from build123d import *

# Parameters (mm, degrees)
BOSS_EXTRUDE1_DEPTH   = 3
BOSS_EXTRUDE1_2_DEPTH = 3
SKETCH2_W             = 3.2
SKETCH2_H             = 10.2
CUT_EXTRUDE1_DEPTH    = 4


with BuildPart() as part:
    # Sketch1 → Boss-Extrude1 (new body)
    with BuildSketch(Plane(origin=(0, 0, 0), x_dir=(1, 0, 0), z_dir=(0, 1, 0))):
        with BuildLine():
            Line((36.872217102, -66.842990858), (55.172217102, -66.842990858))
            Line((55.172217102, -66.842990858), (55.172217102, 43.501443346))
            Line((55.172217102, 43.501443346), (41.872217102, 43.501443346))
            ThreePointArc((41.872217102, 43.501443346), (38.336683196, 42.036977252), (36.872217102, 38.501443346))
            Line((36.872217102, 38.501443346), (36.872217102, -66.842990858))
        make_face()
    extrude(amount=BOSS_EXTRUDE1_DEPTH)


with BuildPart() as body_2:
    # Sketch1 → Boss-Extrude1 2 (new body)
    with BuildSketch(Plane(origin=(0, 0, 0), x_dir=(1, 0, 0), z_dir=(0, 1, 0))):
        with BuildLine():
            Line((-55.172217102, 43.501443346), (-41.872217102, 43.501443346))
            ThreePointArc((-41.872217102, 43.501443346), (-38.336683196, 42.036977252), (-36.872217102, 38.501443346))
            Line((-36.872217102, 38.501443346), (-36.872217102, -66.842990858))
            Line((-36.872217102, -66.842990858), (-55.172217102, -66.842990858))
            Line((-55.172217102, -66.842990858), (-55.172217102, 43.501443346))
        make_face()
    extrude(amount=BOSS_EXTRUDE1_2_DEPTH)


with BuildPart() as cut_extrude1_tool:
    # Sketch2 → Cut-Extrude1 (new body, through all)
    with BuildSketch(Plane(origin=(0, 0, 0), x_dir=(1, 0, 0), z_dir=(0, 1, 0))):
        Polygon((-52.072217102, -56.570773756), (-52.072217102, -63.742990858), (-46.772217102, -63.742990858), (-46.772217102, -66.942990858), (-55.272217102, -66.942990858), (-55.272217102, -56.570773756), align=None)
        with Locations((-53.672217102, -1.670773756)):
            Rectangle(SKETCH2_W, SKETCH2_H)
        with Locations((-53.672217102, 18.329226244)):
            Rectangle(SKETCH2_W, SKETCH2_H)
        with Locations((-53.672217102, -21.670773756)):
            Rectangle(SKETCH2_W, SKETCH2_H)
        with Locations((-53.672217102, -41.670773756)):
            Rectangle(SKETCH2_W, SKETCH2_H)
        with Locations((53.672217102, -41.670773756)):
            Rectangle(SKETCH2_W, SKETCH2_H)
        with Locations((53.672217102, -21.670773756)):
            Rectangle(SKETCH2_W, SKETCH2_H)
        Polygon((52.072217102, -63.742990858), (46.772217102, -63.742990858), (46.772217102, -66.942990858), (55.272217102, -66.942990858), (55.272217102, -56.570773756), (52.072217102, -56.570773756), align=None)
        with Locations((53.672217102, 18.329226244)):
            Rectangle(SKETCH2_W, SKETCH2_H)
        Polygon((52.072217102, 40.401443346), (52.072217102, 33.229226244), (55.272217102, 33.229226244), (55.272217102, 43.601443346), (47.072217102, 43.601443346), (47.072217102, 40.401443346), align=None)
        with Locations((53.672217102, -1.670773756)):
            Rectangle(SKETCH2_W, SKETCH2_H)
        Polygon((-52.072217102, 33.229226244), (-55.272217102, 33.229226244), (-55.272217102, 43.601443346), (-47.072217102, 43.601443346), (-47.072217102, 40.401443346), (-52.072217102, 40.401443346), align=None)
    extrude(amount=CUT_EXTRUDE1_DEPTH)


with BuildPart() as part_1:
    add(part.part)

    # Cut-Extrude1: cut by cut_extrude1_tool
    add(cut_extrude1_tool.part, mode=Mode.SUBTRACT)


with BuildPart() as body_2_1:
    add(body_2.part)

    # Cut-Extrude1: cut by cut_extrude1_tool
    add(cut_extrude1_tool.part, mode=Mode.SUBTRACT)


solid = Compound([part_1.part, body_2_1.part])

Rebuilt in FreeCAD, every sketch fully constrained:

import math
import FreeCAD as App
import Part
import Sketcher

V = App.Vector
Q = App.Units.Quantity


def add_polygon(sketch, points):
    """Adds a closed chain of lines whose ends are joined by coincident constraints."""
    first, n = sketch.GeometryCount, len(points)
    for a, b in zip(points, points[1:] + points[:1]):
        sketch.addGeometry(Part.LineSegment(App.Vector(*a, 0), App.Vector(*b, 0)), False)
    for i in range(n):
        sketch.addConstraint(Sketcher.Constraint("Coincident", first + i, 2, first + (i + 1) % n, 1))

doc = App.newDocument("Part")
body = doc.addObject("PartDesign::Body", "Body")

sketch1 = doc.addObject("Sketcher::SketchObject", "Sketch")
body.addObject(sketch1)
sketch1.AttachmentSupport = (doc.XZ_Plane, [""])
sketch1.MapMode = "FlatFace"
sketch1.addGeometry(Part.LineSegment(V(37, 67, 0), V(55, 67, 0)), False)
sketch1.addGeometry(Part.LineSegment(V(55, 67, 0), V(55, -44, 0)), False)
sketch1.addGeometry(Part.LineSegment(V(55, -44, 0), V(42, -44, 0)), False)
sketch1.addGeometry(Part.ArcOfCircle(Part.Circle(V(42, -39, 0), V(0, 0, 1), 5), math.radians(180), math.radians(270)), False)
sketch1.addGeometry(Part.LineSegment(V(37, -39, 0), V(37, 67, 0)), False)
sketch1.addConstraint(Sketcher.Constraint("Coincident", 0, 2, 1, 1))
sketch1.addConstraint(Sketcher.Constraint("Coincident", 1, 2, 2, 1))
sketch1.addConstraint(Sketcher.Constraint("Tangent", 2, 2, 3, 2))
sketch1.addConstraint(Sketcher.Constraint("Tangent", 3, 1, 4, 1))
sketch1.addConstraint(Sketcher.Constraint("Coincident", 4, 2, 0, 1))
sketch1.addConstraint(Sketcher.Constraint("Horizontal", 0))
sketch1.addConstraint(Sketcher.Constraint("Vertical", 1))
sketch1.addConstraint(Sketcher.Constraint("Horizontal", 2))
sketch1.addConstraint(Sketcher.Constraint("Vertical", 4))
sketch1.addConstraint(Sketcher.Constraint("Radius", 3, Q("5 mm")))
sketch1.addConstraint(Sketcher.Constraint("DistanceX", 0, 1, 0, 2, Q("18.3 mm")))
sketch1.addConstraint(Sketcher.Constraint("DistanceY", 1, 2, 1, 1, Q("110.344434 mm")))
sketch1.addConstraint(Sketcher.Constraint("DistanceY", -1, 1, 0, 2, Q("66.842991 mm")))
sketch1.addConstraint(Sketcher.Constraint("DistanceX", -1, 1, 3, 3, Q("41.872217 mm")))
pad1 = doc.addObject("PartDesign::Pad", "Pad")
body.addObject(pad1)
pad1.Profile = sketch1
pad1.Length = 3
pad1.Reversed = True
body2 = doc.addObject("PartDesign::Body", "Body001")

sketch2 = doc.addObject("Sketcher::SketchObject", "Sketch001")
body2.addObject(sketch2)
sketch2.AttachmentSupport = (doc.getObject("XZ_Plane001"), [""])
sketch2.MapMode = "FlatFace"
sketch2.addGeometry(Part.LineSegment(V(-42, -44, 0), V(-55, -44, 0)), False)
sketch2.addGeometry(Part.LineSegment(V(-55, -44, 0), V(-55, 67, 0)), False)
sketch2.addGeometry(Part.LineSegment(V(-55, 67, 0), V(-37, 67, 0)), False)
sketch2.addGeometry(Part.LineSegment(V(-37, 67, 0), V(-37, -39, 0)), False)
sketch2.addGeometry(Part.ArcOfCircle(Part.Circle(V(-42, -39, 0), V(0, 0, 1), 5), math.radians(-90), math.radians(0)), False)
sketch2.addConstraint(Sketcher.Constraint("Coincident", 0, 2, 1, 1))
sketch2.addConstraint(Sketcher.Constraint("Coincident", 1, 2, 2, 1))
sketch2.addConstraint(Sketcher.Constraint("Coincident", 2, 2, 3, 1))
sketch2.addConstraint(Sketcher.Constraint("Tangent", 3, 2, 4, 2))
sketch2.addConstraint(Sketcher.Constraint("Tangent", 4, 1, 0, 1))
sketch2.addConstraint(Sketcher.Constraint("Horizontal", 0))
sketch2.addConstraint(Sketcher.Constraint("Vertical", 1))
sketch2.addConstraint(Sketcher.Constraint("Horizontal", 2))
sketch2.addConstraint(Sketcher.Constraint("Vertical", 3))
sketch2.addConstraint(Sketcher.Constraint("Radius", 4, Q("5 mm")))
sketch2.addConstraint(Sketcher.Constraint("DistanceX", 0, 2, 0, 1, Q("13.3 mm")))
sketch2.addConstraint(Sketcher.Constraint("DistanceY", 1, 1, 1, 2, Q("110.344434 mm")))
sketch2.addConstraint(Sketcher.Constraint("DistanceY", -1, 1, 1, 2, Q("66.842991 mm")))
sketch2.addConstraint(Sketcher.Constraint("DistanceX", 4, 3, -1, 1, Q("41.872217 mm")))
pad2 = doc.addObject("PartDesign::Pad", "Pad001")
body2.addObject(pad2)
pad2.Profile = sketch2
pad2.Length = 3
pad2.Reversed = True
body3 = doc.addObject("PartDesign::Body", "Body002")
body3.AllowCompound = True

sketch3 = doc.addObject("Sketcher::SketchObject", "Sketch002")
body3.addObject(sketch3)
sketch3.AttachmentSupport = (doc.getObject("XZ_Plane002"), [""])
sketch3.MapMode = "FlatFace"
add_polygon(sketch3, [(-52.1, 63.7), (-52.1, 56.6), (-55.3, 56.6), (-55.3, 66.9), (-46.8, 66.9), (-46.8, 63.7)])
add_polygon(sketch3, [(-55.3, -3.4), (-55.3, 6.8), (-52.1, 6.8), (-52.1, -3.4)])
add_polygon(sketch3, [(-55.3, -23.4), (-55.3, -13.2), (-52.1, -13.2), (-52.1, -23.4)])
add_polygon(sketch3, [(-55.3, 16.6), (-55.3, 26.8), (-52.1, 26.8), (-52.1, 16.6)])
add_polygon(sketch3, [(-55.3, 36.6), (-55.3, 46.8), (-52.1, 46.8), (-52.1, 36.6)])
add_polygon(sketch3, [(52.1, 36.6), (52.1, 46.8), (55.3, 46.8), (55.3, 36.6)])
add_polygon(sketch3, [(52.1, 16.6), (52.1, 26.8), (55.3, 26.8), (55.3, 16.6)])
add_polygon(sketch3, [(52.1, 63.7), (46.8, 63.7), (46.8, 66.9), (55.3, 66.9), (55.3, 56.6), (52.1, 56.6)])
add_polygon(sketch3, [(52.1, -23.4), (52.1, -13.2), (55.3, -13.2), (55.3, -23.4)])
add_polygon(sketch3, [(52.1, -40.4), (52.1, -33.2), (55.3, -33.2), (55.3, -43.6), (47.1, -43.6), (47.1, -40.4)])
add_polygon(sketch3, [(52.1, -3.4), (52.1, 6.8), (55.3, 6.8), (55.3, -3.4)])
add_polygon(sketch3, [(-55.3, -33.2), (-52.1, -33.2), (-52.1, -40.4), (-47.1, -40.4), (-47.1, -43.6), (-55.3, -43.6)])
sketch3.addConstraint(Sketcher.Constraint("Vertical", 0))
sketch3.addConstraint(Sketcher.Constraint("Horizontal", 1))
sketch3.addConstraint(Sketcher.Constraint("Vertical", 2))
sketch3.addConstraint(Sketcher.Constraint("Horizontal", 3))
sketch3.addConstraint(Sketcher.Constraint("Vertical", 4))
sketch3.addConstraint(Sketcher.Constraint("Horizontal", 5))
sketch3.addConstraint(Sketcher.Constraint("Vertical", 6))
sketch3.addConstraint(Sketcher.Constraint("Horizontal", 7))
sketch3.addConstraint(Sketcher.Constraint("Vertical", 8))
sketch3.addConstraint(Sketcher.Constraint("Horizontal", 9))
sketch3.addConstraint(Sketcher.Constraint("Vertical", 10))
sketch3.addConstraint(Sketcher.Constraint("Horizontal", 11))
sketch3.addConstraint(Sketcher.Constraint("Vertical", 12))
sketch3.addConstraint(Sketcher.Constraint("Horizontal", 13))
sketch3.addConstraint(Sketcher.Constraint("Vertical", 14))
sketch3.addConstraint(Sketcher.Constraint("Horizontal", 15))
sketch3.addConstraint(Sketcher.Constraint("Vertical", 16))
sketch3.addConstraint(Sketcher.Constraint("Horizontal", 17))
sketch3.addConstraint(Sketcher.Constraint("Vertical", 18))
sketch3.addConstraint(Sketcher.Constraint("Horizontal", 19))
sketch3.addConstraint(Sketcher.Constraint("Vertical", 20))
sketch3.addConstraint(Sketcher.Constraint("Horizontal", 21))
sketch3.addConstraint(Sketcher.Constraint("Vertical", 22))
sketch3.addConstraint(Sketcher.Constraint("Horizontal", 23))
sketch3.addConstraint(Sketcher.Constraint("Vertical", 24))
sketch3.addConstraint(Sketcher.Constraint("Horizontal", 25))
sketch3.addConstraint(Sketcher.Constraint("Vertical", 26))
sketch3.addConstraint(Sketcher.Constraint("Horizontal", 27))
sketch3.addConstraint(Sketcher.Constraint("Vertical", 28))
sketch3.addConstraint(Sketcher.Constraint("Horizontal", 29))
sketch3.addConstraint(Sketcher.Constraint("Horizontal", 30))
sketch3.addConstraint(Sketcher.Constraint("Vertical", 31))
sketch3.addConstraint(Sketcher.Constraint("Horizontal", 32))
sketch3.addConstraint(Sketcher.Constraint("Vertical", 33))
sketch3.addConstraint(Sketcher.Constraint("Horizontal", 34))
sketch3.addConstraint(Sketcher.Constraint("Vertical", 35))
sketch3.addConstraint(Sketcher.Constraint("Vertical", 36))
sketch3.addConstraint(Sketcher.Constraint("Horizontal", 37))
sketch3.addConstraint(Sketcher.Constraint("Vertical", 38))
sketch3.addConstraint(Sketcher.Constraint("Horizontal", 39))
sketch3.addConstraint(Sketcher.Constraint("Vertical", 40))
sketch3.addConstraint(Sketcher.Constraint("Horizontal", 41))
sketch3.addConstraint(Sketcher.Constraint("Vertical", 42))
sketch3.addConstraint(Sketcher.Constraint("Horizontal", 43))
sketch3.addConstraint(Sketcher.Constraint("Vertical", 44))
sketch3.addConstraint(Sketcher.Constraint("Horizontal", 45))
sketch3.addConstraint(Sketcher.Constraint("Vertical", 46))
sketch3.addConstraint(Sketcher.Constraint("Horizontal", 47))
sketch3.addConstraint(Sketcher.Constraint("Vertical", 48))
sketch3.addConstraint(Sketcher.Constraint("Horizontal", 49))
sketch3.addConstraint(Sketcher.Constraint("Horizontal", 50))
sketch3.addConstraint(Sketcher.Constraint("Vertical", 51))
sketch3.addConstraint(Sketcher.Constraint("Horizontal", 52))
sketch3.addConstraint(Sketcher.Constraint("Vertical", 53))
sketch3.addConstraint(Sketcher.Constraint("Horizontal", 54))
sketch3.addConstraint(Sketcher.Constraint("Vertical", 55))
sketch3.addConstraint(Sketcher.Constraint("Symmetric", 19, 2, 22, 2, -2))
sketch3.addConstraint(Sketcher.Constraint("Symmetric", 21, 2, 24, 2, -2))
sketch3.addConstraint(Sketcher.Constraint("Symmetric", 15, 2, 26, 2, -2))
sketch3.addConstraint(Sketcher.Constraint("Symmetric", 17, 2, 28, 2, -2))
sketch3.addConstraint(Sketcher.Constraint("Symmetric", 4, 2, 30, 2, -2))
sketch3.addConstraint(Sketcher.Constraint("Symmetric", 2, 2, 32, 2, -2))
sketch3.addConstraint(Sketcher.Constraint("Symmetric", 0, 2, 34, 2, -2))
sketch3.addConstraint(Sketcher.Constraint("Symmetric", 11, 2, 36, 2, -2))
sketch3.addConstraint(Sketcher.Constraint("Symmetric", 13, 2, 38, 2, -2))
sketch3.addConstraint(Sketcher.Constraint("Symmetric", 7, 2, 46, 2, -2))
sketch3.addConstraint(Sketcher.Constraint("Symmetric", 9, 2, 48, 2, -2))
sketch3.addConstraint(Sketcher.Constraint("Symmetric", 40, 2, 50, 2, -2))
sketch3.addConstraint(Sketcher.Constraint("Symmetric", 44, 2, 52, 2, -2))
sketch3.addConstraint(Sketcher.Constraint("Symmetric", 42, 2, 54, 2, -2))
sketch3.addConstraint(Sketcher.Constraint("Vertical", 2, 2, 6, 2))
sketch3.addConstraint(Sketcher.Constraint("Vertical", 5, 2, 7, 2))
sketch3.addConstraint(Sketcher.Constraint("Vertical", 9, 2, 10, 2))
sketch3.addConstraint(Sketcher.Constraint("Vertical", 8, 2, 11, 2))
sketch3.addConstraint(Sketcher.Constraint("Vertical", 13, 2, 14, 2))
sketch3.addConstraint(Sketcher.Constraint("Vertical", 12, 2, 15, 2))
sketch3.addConstraint(Sketcher.Constraint("Vertical", 17, 2, 18, 2))
sketch3.addConstraint(Sketcher.Constraint("Vertical", 16, 2, 19, 2))
sketch3.addConstraint(Sketcher.Constraint("Vertical", 39, 2, 40, 2))
sketch3.addConstraint(Sketcher.Constraint("Vertical", 38, 2, 41, 2))
sketch3.addConstraint(Sketcher.Constraint("Equal", 50, 4))
sketch3.addConstraint(Sketcher.Constraint("Equal", 8, 10))
sketch3.addConstraint(Sketcher.Constraint("Equal", 12, 14))
sketch3.addConstraint(Sketcher.Constraint("Equal", 16, 18))
sketch3.addConstraint(Sketcher.Constraint("Equal", 35, 40))
sketch3.addConstraint(Sketcher.Constraint("Equal", 33, 42))
sketch3.addConstraint(Sketcher.Constraint("DistanceX", 45, 1, 45, 2, Q("5 mm")))
sketch3.addConstraint(Sketcher.Constraint("DistanceX", 1, 2, 1, 1, Q("3.2 mm")))
sketch3.addConstraint(Sketcher.Constraint("DistanceX", 3, 1, 3, 2, Q("8.5 mm")))
sketch3.addConstraint(Sketcher.Constraint("DistanceY", 6, 1, 6, 2, Q("10.2 mm")))
sketch3.addConstraint(Sketcher.Constraint("DistanceY", 8, 2, 0, 2, Q("60 mm")))
sketch3.addConstraint(Sketcher.Constraint("DistanceY", 10, 2, 6, 2, Q("20 mm")))
sketch3.addConstraint(Sketcher.Constraint("DistanceY", 6, 2, 14, 2, Q("20 mm")))
sketch3.addConstraint(Sketcher.Constraint("DistanceY", 14, 2, 18, 2, Q("20 mm")))
sketch3.addConstraint(Sketcher.Constraint("DistanceY", 40, 2, 36, 2, Q("20 mm")))
sketch3.addConstraint(Sketcher.Constraint("DistanceY", 0, 2, 0, 1, Q("7.172217 mm")))
sketch3.addConstraint(Sketcher.Constraint("DistanceY", -1, 1, 2, 2, Q("66.942991 mm")))
sketch3.addConstraint(Sketcher.Constraint("DistanceX", 0, 2, -1, 1, Q("52.072217 mm")))
pad3 = doc.addObject("PartDesign::Pad", "Pad002")
body3.addObject(pad3)
pad3.Profile = sketch3
pad3.Length = 4
pad3.Reversed = True
doc.recompute()

body4 = doc.addObject("PartDesign::Body", "Body003")
body4.BaseFeature = body3
boolean = doc.addObject("PartDesign::Boolean", "Boolean")
body.addObject(boolean)
boolean.Type = "Cut"
boolean.addObjects([body4])
doc.recompute()

boolean2 = doc.addObject("PartDesign::Boolean", "Boolean001")
body2.addObject(boolean2)
boolean2.Type = "Cut"
boolean2.addObjects([body3])

doc.recompute()
